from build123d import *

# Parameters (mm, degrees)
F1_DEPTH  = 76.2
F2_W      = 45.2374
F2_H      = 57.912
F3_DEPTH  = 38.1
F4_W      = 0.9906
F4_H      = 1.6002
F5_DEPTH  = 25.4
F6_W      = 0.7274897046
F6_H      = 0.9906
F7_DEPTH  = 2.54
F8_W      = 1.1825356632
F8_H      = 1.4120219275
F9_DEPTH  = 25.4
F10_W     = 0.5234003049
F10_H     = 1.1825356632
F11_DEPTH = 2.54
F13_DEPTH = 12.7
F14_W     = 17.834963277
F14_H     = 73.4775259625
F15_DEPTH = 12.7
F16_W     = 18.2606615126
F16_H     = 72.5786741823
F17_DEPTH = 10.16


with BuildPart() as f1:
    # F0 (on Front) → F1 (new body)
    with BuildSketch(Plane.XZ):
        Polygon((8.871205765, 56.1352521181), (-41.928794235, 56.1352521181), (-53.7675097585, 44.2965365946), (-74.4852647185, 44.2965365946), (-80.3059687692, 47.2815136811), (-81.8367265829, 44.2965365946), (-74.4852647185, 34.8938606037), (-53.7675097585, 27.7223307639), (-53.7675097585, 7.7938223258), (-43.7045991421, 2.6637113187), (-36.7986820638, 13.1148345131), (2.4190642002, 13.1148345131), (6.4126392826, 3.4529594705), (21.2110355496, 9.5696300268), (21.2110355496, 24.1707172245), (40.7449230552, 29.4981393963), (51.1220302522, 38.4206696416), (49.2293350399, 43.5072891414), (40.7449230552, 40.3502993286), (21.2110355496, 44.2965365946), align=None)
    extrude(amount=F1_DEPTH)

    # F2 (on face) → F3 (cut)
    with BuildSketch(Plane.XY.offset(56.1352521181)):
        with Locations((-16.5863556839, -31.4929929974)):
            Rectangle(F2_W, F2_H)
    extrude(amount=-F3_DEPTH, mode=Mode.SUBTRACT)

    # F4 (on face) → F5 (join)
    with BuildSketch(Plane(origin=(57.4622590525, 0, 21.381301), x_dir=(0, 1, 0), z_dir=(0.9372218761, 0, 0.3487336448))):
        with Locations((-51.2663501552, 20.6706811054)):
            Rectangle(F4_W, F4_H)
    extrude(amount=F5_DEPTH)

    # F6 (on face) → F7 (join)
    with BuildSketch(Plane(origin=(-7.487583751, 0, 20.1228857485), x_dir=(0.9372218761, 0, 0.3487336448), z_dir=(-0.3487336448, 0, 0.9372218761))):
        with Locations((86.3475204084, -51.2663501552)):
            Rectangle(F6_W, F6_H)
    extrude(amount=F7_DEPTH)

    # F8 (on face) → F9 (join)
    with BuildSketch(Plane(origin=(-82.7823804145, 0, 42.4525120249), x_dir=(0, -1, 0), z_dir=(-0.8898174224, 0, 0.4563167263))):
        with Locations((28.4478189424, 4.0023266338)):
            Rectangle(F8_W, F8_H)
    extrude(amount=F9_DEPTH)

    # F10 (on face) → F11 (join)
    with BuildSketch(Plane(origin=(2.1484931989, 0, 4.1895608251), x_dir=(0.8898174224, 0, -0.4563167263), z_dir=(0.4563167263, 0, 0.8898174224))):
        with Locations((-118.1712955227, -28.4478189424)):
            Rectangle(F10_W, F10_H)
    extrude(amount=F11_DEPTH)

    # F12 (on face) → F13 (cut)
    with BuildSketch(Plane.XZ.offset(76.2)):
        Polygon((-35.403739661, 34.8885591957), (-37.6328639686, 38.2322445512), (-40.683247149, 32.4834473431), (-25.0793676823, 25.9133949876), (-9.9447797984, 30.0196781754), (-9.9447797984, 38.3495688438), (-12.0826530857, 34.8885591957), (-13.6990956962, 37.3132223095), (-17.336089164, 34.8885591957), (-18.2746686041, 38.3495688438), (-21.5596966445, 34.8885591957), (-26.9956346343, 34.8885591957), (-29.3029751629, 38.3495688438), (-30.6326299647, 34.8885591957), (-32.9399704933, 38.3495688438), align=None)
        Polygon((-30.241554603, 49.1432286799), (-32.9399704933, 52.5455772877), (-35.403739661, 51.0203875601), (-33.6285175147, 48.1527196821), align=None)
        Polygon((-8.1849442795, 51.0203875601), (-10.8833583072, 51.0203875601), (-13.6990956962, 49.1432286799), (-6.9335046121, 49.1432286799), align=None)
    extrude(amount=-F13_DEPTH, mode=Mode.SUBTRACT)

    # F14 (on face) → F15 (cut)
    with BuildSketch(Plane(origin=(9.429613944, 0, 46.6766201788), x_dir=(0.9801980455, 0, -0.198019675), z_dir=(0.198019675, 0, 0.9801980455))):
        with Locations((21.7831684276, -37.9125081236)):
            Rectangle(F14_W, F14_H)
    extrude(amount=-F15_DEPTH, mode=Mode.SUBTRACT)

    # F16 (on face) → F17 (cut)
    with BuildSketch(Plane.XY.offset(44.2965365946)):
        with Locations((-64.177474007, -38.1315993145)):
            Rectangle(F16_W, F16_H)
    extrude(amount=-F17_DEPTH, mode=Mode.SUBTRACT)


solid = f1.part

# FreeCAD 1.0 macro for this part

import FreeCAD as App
import Part
import Sketcher
from FreeCAD import Vector
Q = App.Units.Quantity


def add_polygon(sketch, points):
    """Adds a closed chain of lines whose ends are joined by coincident constraints."""
    first, n = sketch.GeometryCount, len(points)
    for a, b in zip(points, points[1:] + points[:1]):
        sketch.addGeometry(Part.LineSegment(App.Vector(*a, 0), App.Vector(*b, 0)), False)
    for i in range(n):
        sketch.addConstraint(Sketcher.Constraint("Coincident", first + i, 2, first + (i + 1) % n, 1))

doc = App.newDocument("Part")
body = doc.addObject("PartDesign::Body", "Body")

sketch1 = doc.addObject("Sketcher::SketchObject", "Sketch")
body.addObject(sketch1)
sketch1.AttachmentSupport = (doc.XZ_Plane, [""])
sketch1.MapMode = "FlatFace"
add_polygon(sketch1, [(8.9, 56.1), (-41.9, 56.1), (-53.8, 44.3), (-74.5, 44.3), (-80.3, 47.3), (-81.8, 44.3), (-74.5, 34.9), (-53.8, 27.7), (-53.8, 7.8), (-43.7, 2.7), (-36.8, 13.1), (2.4, 13.1), (6.4, 3.5), (21.2, 9.6), (21.2, 24.2), (40.7, 29.5), (51.1, 38.4), (49.2, 43.5), (40.7, 40.4), (21.2, 44.3)])
sketch1.addConstraint(Sketcher.Constraint("Horizontal", 0))
sketch1.addConstraint(Sketcher.Constraint("Horizontal", 2))
sketch1.addConstraint(Sketcher.Constraint("Vertical", 7))
sketch1.addConstraint(Sketcher.Constraint("Horizontal", 10))
sketch1.addConstraint(Sketcher.Constraint("Vertical", 13))
sketch1.addConstraint(Sketcher.Constraint("Perpendicular", 3, 4))
sketch1.addConstraint(Sketcher.Constraint("Perpendicular", 11, 12))
sketch1.addConstraint(Sketcher.Constraint("Perpendicular", 16, 17))
sketch1.addConstraint(Sketcher.Constraint("Horizontal", 2, 2, 4, 2))
sketch1.addConstraint(Sketcher.Constraint("Horizontal", 4, 2, 18, 2))
sketch1.addConstraint(Sketcher.Constraint("Vertical", 2, 2, 5, 2))
sketch1.addConstraint(Sketcher.Constraint("Vertical", 1, 2, 6, 2))
sketch1.addConstraint(Sketcher.Constraint("Vertical", 14, 2, 17, 2))
sketch1.addConstraint(Sketcher.Constraint("Vertical", 13, 2, 18, 2))
sketch1.addConstraint(Sketcher.Constraint("DistanceX", 0, 2, 0, 1, Q("2 in")))
sketch1.addConstraint(Sketcher.Constraint("Angle", 1, Q("-135 deg")))
sketch1.addConstraint(Sketcher.Constraint("Angle", 5, Q("-51.980003 deg")))
sketch1.addConstraint(Sketcher.Constraint("DistanceY", 11, 2, 7, 2, Q("0.1709001 in")))
sketch1.addConstraint(Sketcher.Constraint("DistanceY", 7, 2, 7, 1, Q("19.928508 mm")))
sketch1.addConstraint(Sketcher.Constraint("DistanceX", 8, 2, -1, 1, Q("43.704599 mm")))
sketch1.addConstraint(Sketcher.Constraint("DistanceY", -1, 1, 17, 2, Q("40.350299 mm")))
sketch1.addConstraint(Sketcher.Constraint("DistanceX", 13, 2, 16, 2, Q("28.018299 mm")))
sketch1.addConstraint(Sketcher.Constraint("Distance", 3, Q("6.541459 mm")))
sketch1.addConstraint(Sketcher.Constraint("Distance", 8, Q("11.295141 mm")))
sketch1.addConstraint(Sketcher.Constraint("Distance", 9, Q("12.526678 mm")))
sketch1.addConstraint(Sketcher.Constraint("Distance", 12, Q("16.012688 mm")))
sketch1.addConstraint(Sketcher.Constraint("Distance", 15, Q("13.685609 mm")))
sketch1.addConstraint(Sketcher.Constraint("Distance", 18, Q("19.928511 mm")))
sketch1.addConstraint(Sketcher.Constraint("DistanceX", 2, 2, 2, 1, Q("20.717755 mm")))
sketch1.addConstraint(Sketcher.Constraint("DistanceX", 10, 1, 10, 2, Q("39.217746 mm")))
sketch1.addConstraint(Sketcher.Constraint("DistanceY", 13, 1, 13, 2, Q("14.601087 mm")))
sketch1.addConstraint(Sketcher.Constraint("DistanceX", 1, 2, -1, 1, Q("53.76751 mm")))
sketch1.addConstraint(Sketcher.Constraint("DistanceX", 3, 2, -1, 1, Q("80.305969 mm")))
sketch1.addConstraint(Sketcher.Constraint("DistanceY", -1, 1, 5, 2, Q("34.893861 mm")))
sketch1.addConstraint(Sketcher.Constraint("DistanceY", -1, 1, 6, 2, Q("27.722331 mm")))
sketch1.addConstraint(Sketcher.Constraint("DistanceX", -1, 1, 11, 2, Q("6.412639 mm")))
sketch1.addConstraint(Sketcher.Constraint("DistanceY", -1, 1, 12, 2, Q("9.56963 mm")))
sketch1.addConstraint(Sketcher.Constraint("DistanceY", -1, 1, 14, 2, Q("29.498139 mm")))
sketch1.addConstraint(Sketcher.Constraint("DistanceX", -1, 1, 15, 2, Q("51.12203 mm")))
sketch1.addConstraint(Sketcher.Constraint("DistanceX", 2, 2, 0, 2, Q("32.55647 mm")))
pad1 = doc.addObject("PartDesign::Pad", "Pad")
body.addObject(pad1)
pad1.Profile = sketch1
pad1.Length = Q("3 in")

sketch2 = doc.addObject("Sketcher::SketchObject", "Sketch001")
body.addObject(sketch2)
sketch2.AttachmentSupport = (doc.XY_Plane, [""])
sketch2.MapMode = "FlatFace"
sketch2.AttachmentOffset = App.Placement(Vector(0, 0, 56.135252), App.Rotation())
add_polygon(sketch2, [(-39, -3), (-39, -60), (6, -60), (6, -3)])
sketch2.addConstraint(Sketcher.Constraint("Vertical", 0))
sketch2.addConstraint(Sketcher.Constraint("Horizontal", 1))
sketch2.addConstraint(Sketcher.Constraint("Vertical", 2))
sketch2.addConstraint(Sketcher.Constraint("Horizontal", 3))
sketch2.addConstraint(Sketcher.Constraint("DistanceY", 0, 2, 0, 1, Q("2.28 in")))
sketch2.addConstraint(Sketcher.Constraint("DistanceX", 1, 1, 1, 2, Q("1.781 in")))
sketch2.addConstraint(Sketcher.Constraint("DistanceX", 0, 2, -1, 1, Q("39.205056 mm")))
sketch2.addConstraint(Sketcher.Constraint("DistanceY", 0, 2, -1, 1, Q("60.448993 mm")))
pocket1 = doc.addObject("PartDesign::Pocket", "Pocket")
body.addObject(pocket1)
pocket1.Profile = sketch2
pocket1.Length = Q("1.5 in")

sketch3 = doc.addObject("Sketcher::SketchObject", "Sketch002")
body.addObject(sketch3)
sketch3.Placement = App.Placement(Vector(57.462259, 0, 21.381301), App.Rotation(Vector(0, 1, 0), Vector(-0.348733645, 0, 0.937221876), Vector(0.937221876, 0, 0.348733645), "ZXY"))
add_polygon(sketch3, [(-51.8, 21.5), (-51.8, 19.9), (-50.8, 19.9), (-50.8, 21.5)])
sketch3.addConstraint(Sketcher.Constraint("Vertical", 0))
sketch3.addConstraint(Sketcher.Constraint("Horizontal", 1))
sketch3.addConstraint(Sketcher.Constraint("Vertical", 2))
sketch3.addConstraint(Sketcher.Constraint("Horizontal", 3))
sketch3.addConstraint(Sketcher.Constraint("DistanceX", 1, 1, 1, 2, Q("0.039 in")))
sketch3.addConstraint(Sketcher.Constraint("DistanceY", 0, 2, 0, 1, Q("0.063 in")))
sketch3.addConstraint(Sketcher.Constraint("DistanceX", 0, 2, -1, 1, Q("51.76165 mm")))
sketch3.addConstraint(Sketcher.Constraint("DistanceY", -1, 1, 0, 2, Q("19.870581 mm")))
pad2 = doc.addObject("PartDesign::Pad", "Pad001")
body.addObject(pad2)
pad2.Profile = sketch3
pad2.Length = Q("1 in")

sketch4 = doc.addObject("Sketcher::SketchObject", "Sketch003")
body.addObject(sketch4)
sketch4.Placement = App.Placement(Vector(-7.487584, 0, 20.122886), App.Rotation(Vector(0.937221876, 0, 0.348733645), Vector(0, 1, 0), Vector(-0.348733645, 0, 0.937221876), "ZXY"))
add_polygon(sketch4, [(86, -50.8), (86, -51.8), (86.7, -51.8), (86.7, -50.8)])
sketch4.addConstraint(Sketcher.Constraint("Vertical", 0))
sketch4.addConstraint(Sketcher.Constraint("Horizontal", 1))
sketch4.addConstraint(Sketcher.Constraint("Vertical", 2))
sketch4.addConstraint(Sketcher.Constraint("Horizontal", 3))
sketch4.addConstraint(Sketcher.Constraint("DistanceY", 0, 2, 0, 1, Q("0.039 in")))
sketch4.addConstraint(Sketcher.Constraint("DistanceX", 1, 1, 1, 2, Q("0.72749 mm")))
sketch4.addConstraint(Sketcher.Constraint("DistanceY", 0, 2, -1, 1, Q("51.76165 mm")))
sketch4.addConstraint(Sketcher.Constraint("DistanceX", -1, 1, 0, 2, Q("85.983776 mm")))
pad3 = doc.addObject("PartDesign::Pad", "Pad002")
body.addObject(pad3)
pad3.Profile = sketch4
pad3.Length = Q("0.1 in")

sketch5 = doc.addObject("Sketcher::SketchObject", "Sketch004")
body.addObject(sketch5)
sketch5.Placement = App.Placement(Vector(-82.78238, 0, 42.452512), App.Rotation(Vector(0, -1, 0), Vector(0.456316726, 0, 0.889817422), Vector(-0.889817422, 0, 0.456316726), "ZXY"))
add_polygon(sketch5, [(27.9, 4.7), (27.9, 3.3), (29, 3.3), (29, 4.7)])
sketch5.addConstraint(Sketcher.Constraint("Vertical", 0))
sketch5.addConstraint(Sketcher.Constraint("Horizontal", 1))
sketch5.addConstraint(Sketcher.Constraint("Vertical", 2))
sketch5.addConstraint(Sketcher.Constraint("Horizontal", 3))
sketch5.addConstraint(Sketcher.Constraint("DistanceY", 0, 2, 0, 1, Q("1.412022 mm")))
sketch5.addConstraint(Sketcher.Constraint("DistanceX", 1, 1, 1, 2, Q("1.182536 mm")))
sketch5.addConstraint(Sketcher.Constraint("DistanceX", -1, 1, 0, 2, Q("27.856551 mm")))
sketch5.addConstraint(Sketcher.Constraint("DistanceY", -1, 1, 0, 2, Q("3.296316 mm")))
pad4 = doc.addObject("PartDesign::Pad", "Pad003")
body.addObject(pad4)
pad4.Profile = sketch5
pad4.Length = Q("1 in")

sketch6 = doc.addObject("Sketcher::SketchObject", "Sketch005")
body.addObject(sketch6)
sketch6.Placement = App.Placement(Vector(2.148493, 0, 4.189561), App.Rotation(Vector(0.889817422, 0, -0.456316726), Vector(0, 0.999999999, 0), Vector(0.456316726, 0, 0.889817422), "ZXY"))
add_polygon(sketch6, [(-118.4, -27.9), (-118.4, -29), (-117.9, -29), (-117.9, -27.9)])
sketch6.addConstraint(Sketcher.Constraint("Vertical", 0))
sketch6.addConstraint(Sketcher.Constraint("Horizontal", 1))
sketch6.addConstraint(Sketcher.Constraint("Vertical", 2))
sketch6.addConstraint(Sketcher.Constraint("Horizontal", 3))
sketch6.addConstraint(Sketcher.Constraint("DistanceX", 1, 1, 1, 2, Q("0.5234 mm")))
sketch6.addConstraint(Sketcher.Constraint("DistanceY", 0, 2, 0, 1, Q("1.182536 mm")))
sketch6.addConstraint(Sketcher.Constraint("DistanceY", 2, 2, -1, 1, Q("27.856551 mm")))
sketch6.addConstraint(Sketcher.Constraint("DistanceX", 0, 2, -1, 1, Q("118.432996 mm")))
pad5 = doc.addObject("PartDesign::Pad", "Pad004")
body.addObject(pad5)
pad5.Profile = sketch6
pad5.Length = Q("0.1 in")

sketch7 = doc.addObject("Sketcher::SketchObject", "Sketch006")
body.addObject(sketch7)
sketch7.AttachmentSupport = (doc.XZ_Plane, [""])
sketch7.MapMode = "FlatFace"
sketch7.AttachmentOffset = App.Placement(Vector(0, 0, 3 * 25.4), App.Rotation())
add_polygon(sketch7, [(-35.4, 34.9), (-37.6, 38.2), (-40.7, 32.5), (-25.1, 25.9), (-9.9, 30), (-9.9, 38.3), (-12.1, 34.9), (-13.7, 37.3), (-17.3, 34.9), (-18.3, 38.3), (-21.6, 34.9), (-27, 34.9), (-29.3, 38.3), (-30.6, 34.9), (-32.9, 38.3)])
add_polygon(sketch7, [(-30.2, 49.1), (-32.9, 52.5), (-35.4, 51), (-33.6, 48.2)])
add_polygon(sketch7, [(-8.2, 51), (-10.9, 51), (-13.7, 49.1), (-6.9, 49.1)])
sketch7.addConstraint(Sketcher.Constraint("Vertical", 4))
sketch7.addConstraint(Sketcher.Constraint("Horizontal", 10))
sketch7.addConstraint(Sketcher.Constraint("Horizontal", 19))
sketch7.addConstraint(Sketcher.Constraint("Horizontal", 21))
sketch7.addConstraint(Sketcher.Constraint("Parallel", 0, 6))
sketch7.addConstraint(Sketcher.Constraint("Perpendicular", 6, 7))
sketch7.addConstraint(Sketcher.Constraint("Perpendicular", 7, 11))
sketch7.addConstraint(Sketcher.Constraint("Parallel", 11, 13))
sketch7.addConstraint(Sketcher.Constraint("Perpendicular", 16, 17))
sketch7.addConstraint(Sketcher.Constraint("Perpendicular", 13, 20))
sketch7.addConstraint(Sketcher.Constraint("Perpendicular", 20, 22))
sketch7.addConstraint(Sketcher.Constraint("Horizontal", 5, 2, 7, 2))
sketch7.addConstraint(Sketcher.Constraint("Horizontal", 4, 2, 8, 2))
sketch7.addConstraint(Sketcher.Constraint("Horizontal", 7, 2, 9, 2))
sketch7.addConstraint(Sketcher.Constraint("Horizontal", 8, 2, 11, 2))
sketch7.addConstraint(Sketcher.Constraint("Horizontal", 10, 2, 12, 2))
sketch7.addConstraint(Sketcher.Constraint("Horizontal", 11, 2, 13, 2))
sketch7.addConstraint(Sketcher.Constraint("Horizontal", 12, 2, 14, 2))
sketch7.addConstraint(Sketcher.Constraint("Horizontal", 16, 2, 19, 2))
sketch7.addConstraint(Sketcher.Constraint("Horizontal", 18, 2, 20, 2))
sketch7.addConstraint(Sketcher.Constraint("Vertical", 13, 2, 15, 2))
sketch7.addConstraint(Sketcher.Constraint("Vertical", 14, 2, 16, 2))
sketch7.addConstraint(Sketcher.Constraint("Vertical", 6, 2, 20, 2))
sketch7.addConstraint(Sketcher.Constraint("DistanceX", 21, 1, 21, 2, Q("6.765591 mm")))
sketch7.addConstraint(Sketcher.Constraint("DistanceY", 4, 1, 4, 2, Q("8.329891 mm")))
sketch7.addConstraint(Sketcher.Constraint("DistanceX", 9, 2, 6, 2, Q("7.860601 mm")))
sketch7.addConstraint(Sketcher.Constraint("Distance", 0, Q("4.01861 mm")))
sketch7.addConstraint(Sketcher.Constraint("Distance", 3, Q("15.681751 mm")))
sketch7.addConstraint(Sketcher.Constraint("Distance", 9, Q("4.771792 mm")))
sketch7.addConstraint(Sketcher.Constraint("Distance", 14, Q("4.248382 mm")))
sketch7.addConstraint(Sketcher.Constraint("DistanceX", 10, 2, 10, 1, Q("5.435938 mm")))
sketch7.addConstraint(Sketcher.Constraint("DistanceX", 19, 2, 19, 1, Q("2.698414 mm")))
sketch7.addConstraint(Sketcher.Constraint("DistanceX", 3, 2, -1, 1, Q("9.94478 mm")))
sketch7.addConstraint(Sketcher.Constraint("DistanceY", -1, 1, 3, 2, Q("30.019678 mm")))
sketch7.addConstraint(Sketcher.Constraint("DistanceY", -1, 1, 5, 2, Q("34.888559 mm")))
sketch7.addConstraint(Sketcher.Constraint("DistanceX", 7, 2, -1, 1, Q("17.336089 mm")))
sketch7.addConstraint(Sketcher.Constraint("DistanceX", 8, 2, -1, 1, Q("18.274669 mm")))
sketch7.addConstraint(Sketcher.Constraint("DistanceX", 12, 2, -1, 1, Q("30.63263 mm")))
sketch7.addConstraint(Sketcher.Constraint("DistanceX", 13, 2, -1, 1, Q("32.93997 mm")))
sketch7.addConstraint(Sketcher.Constraint("DistanceY", -1, 1, 17, 2, Q("48.15272 mm")))
sketch7.addConstraint(Sketcher.Constraint("DistanceY", -1, 1, 18, 2, Q("49.143229 mm")))
sketch7.addConstraint(Sketcher.Constraint("DistanceX", 1, 2, 2, 2, Q("15.603879 mm")))
sketch7.addConstraint(Sketcher.Constraint("DistanceY", 2, 2, 0, 2, Q("12.31885 mm")))
sketch7.addConstraint(Sketcher.Constraint("DistanceY", 3, 2, 1, 2, Q("2.463769 mm")))
sketch7.addConstraint(Sketcher.Constraint("DistanceY", 13, 2, 15, 2, Q("14.196008 mm")))
sketch7.addConstraint(Sketcher.Constraint("DistanceX", 18, 2, 11, 2, Q("0.938579 mm")))
pocket2 = doc.addObject("PartDesign::Pocket", "Pocket001")
body.addObject(pocket2)
pocket2.Profile = sketch7
pocket2.Length = Q("0.5 in")

sketch8 = doc.addObject("Sketcher::SketchObject", "Sketch007")
body.addObject(sketch8)
sketch8.Placement = App.Placement(Vector(9.429614, 0, 46.67662), App.Rotation(Vector(0.980198045, 0, -0.198019675), Vector(0, 0.999999999, 0), Vector(0.198019675, 0, 0.980198045), "ZXY"))
add_polygon(sketch8, [(13, -1), (13, -75), (31, -75), (31, -1)])
sketch8.addConstraint(Sketcher.Constraint("Vertical", 0))
sketch8.addConstraint(Sketcher.Constraint("Horizontal", 1))
sketch8.addConstraint(Sketcher.Constraint("Vertical", 2))
sketch8.addConstraint(Sketcher.Constraint("Horizontal", 3))
sketch8.addConstraint(Sketcher.Constraint("DistanceX", 1, 1, 1, 2, Q("17.834963 mm")))
sketch8.addConstraint(Sketcher.Constraint("DistanceY", 0, 2, 0, 1, Q("73.477526 mm")))
sketch8.addConstraint(Sketcher.Constraint("DistanceY", 0, 2, -1, 1, Q("74.651271 mm")))
sketch8.addConstraint(Sketcher.Constraint("DistanceX", -1, 1, 1, 2, Q("30.70065 mm")))
pocket3 = doc.addObject("PartDesign::Pocket", "Pocket002")
body.addObject(pocket3)
pocket3.Profile = sketch8
pocket3.Length = Q("0.5 in")

sketch9 = doc.addObject("Sketcher::SketchObject", "Sketch008")
body.addObject(sketch9)
sketch9.AttachmentSupport = (doc.XY_Plane, [""])
sketch9.MapMode = "FlatFace"
sketch9.AttachmentOffset = App.Placement(Vector(0, 0, 44.296537), App.Rotation())
add_polygon(sketch9, [(-73, -2), (-73, -74), (-55, -74), (-55, -2)])
sketch9.addConstraint(Sketcher.Constraint("Vertical", 0))
sketch9.addConstraint(Sketcher.Constraint("Horizontal", 1))
sketch9.addConstraint(Sketcher.Constraint("Vertical", 2))
sketch9.addConstraint(Sketcher.Constraint("Horizontal", 3))
sketch9.addConstraint(Sketcher.Constraint("DistanceX", 1, 1, 1, 2, Q("18.260662 mm")))
sketch9.addConstraint(Sketcher.Constraint("DistanceY", 0, 2, 0, 1, Q("72.578674 mm")))
sketch9.addConstraint(Sketcher.Constraint("DistanceX", 0, 2, -1, 1, Q("73.307805 mm")))
sketch9.addConstraint(Sketcher.Constraint("DistanceY", 0, 2, -1, 1, Q("74.420936 mm")))
pocket4 = doc.addObject("PartDesign::Pocket", "Pocket003")
body.addObject(pocket4)
pocket4.Profile = sketch9
pocket4.Length = Q("0.4 in")

doc.recompute()
